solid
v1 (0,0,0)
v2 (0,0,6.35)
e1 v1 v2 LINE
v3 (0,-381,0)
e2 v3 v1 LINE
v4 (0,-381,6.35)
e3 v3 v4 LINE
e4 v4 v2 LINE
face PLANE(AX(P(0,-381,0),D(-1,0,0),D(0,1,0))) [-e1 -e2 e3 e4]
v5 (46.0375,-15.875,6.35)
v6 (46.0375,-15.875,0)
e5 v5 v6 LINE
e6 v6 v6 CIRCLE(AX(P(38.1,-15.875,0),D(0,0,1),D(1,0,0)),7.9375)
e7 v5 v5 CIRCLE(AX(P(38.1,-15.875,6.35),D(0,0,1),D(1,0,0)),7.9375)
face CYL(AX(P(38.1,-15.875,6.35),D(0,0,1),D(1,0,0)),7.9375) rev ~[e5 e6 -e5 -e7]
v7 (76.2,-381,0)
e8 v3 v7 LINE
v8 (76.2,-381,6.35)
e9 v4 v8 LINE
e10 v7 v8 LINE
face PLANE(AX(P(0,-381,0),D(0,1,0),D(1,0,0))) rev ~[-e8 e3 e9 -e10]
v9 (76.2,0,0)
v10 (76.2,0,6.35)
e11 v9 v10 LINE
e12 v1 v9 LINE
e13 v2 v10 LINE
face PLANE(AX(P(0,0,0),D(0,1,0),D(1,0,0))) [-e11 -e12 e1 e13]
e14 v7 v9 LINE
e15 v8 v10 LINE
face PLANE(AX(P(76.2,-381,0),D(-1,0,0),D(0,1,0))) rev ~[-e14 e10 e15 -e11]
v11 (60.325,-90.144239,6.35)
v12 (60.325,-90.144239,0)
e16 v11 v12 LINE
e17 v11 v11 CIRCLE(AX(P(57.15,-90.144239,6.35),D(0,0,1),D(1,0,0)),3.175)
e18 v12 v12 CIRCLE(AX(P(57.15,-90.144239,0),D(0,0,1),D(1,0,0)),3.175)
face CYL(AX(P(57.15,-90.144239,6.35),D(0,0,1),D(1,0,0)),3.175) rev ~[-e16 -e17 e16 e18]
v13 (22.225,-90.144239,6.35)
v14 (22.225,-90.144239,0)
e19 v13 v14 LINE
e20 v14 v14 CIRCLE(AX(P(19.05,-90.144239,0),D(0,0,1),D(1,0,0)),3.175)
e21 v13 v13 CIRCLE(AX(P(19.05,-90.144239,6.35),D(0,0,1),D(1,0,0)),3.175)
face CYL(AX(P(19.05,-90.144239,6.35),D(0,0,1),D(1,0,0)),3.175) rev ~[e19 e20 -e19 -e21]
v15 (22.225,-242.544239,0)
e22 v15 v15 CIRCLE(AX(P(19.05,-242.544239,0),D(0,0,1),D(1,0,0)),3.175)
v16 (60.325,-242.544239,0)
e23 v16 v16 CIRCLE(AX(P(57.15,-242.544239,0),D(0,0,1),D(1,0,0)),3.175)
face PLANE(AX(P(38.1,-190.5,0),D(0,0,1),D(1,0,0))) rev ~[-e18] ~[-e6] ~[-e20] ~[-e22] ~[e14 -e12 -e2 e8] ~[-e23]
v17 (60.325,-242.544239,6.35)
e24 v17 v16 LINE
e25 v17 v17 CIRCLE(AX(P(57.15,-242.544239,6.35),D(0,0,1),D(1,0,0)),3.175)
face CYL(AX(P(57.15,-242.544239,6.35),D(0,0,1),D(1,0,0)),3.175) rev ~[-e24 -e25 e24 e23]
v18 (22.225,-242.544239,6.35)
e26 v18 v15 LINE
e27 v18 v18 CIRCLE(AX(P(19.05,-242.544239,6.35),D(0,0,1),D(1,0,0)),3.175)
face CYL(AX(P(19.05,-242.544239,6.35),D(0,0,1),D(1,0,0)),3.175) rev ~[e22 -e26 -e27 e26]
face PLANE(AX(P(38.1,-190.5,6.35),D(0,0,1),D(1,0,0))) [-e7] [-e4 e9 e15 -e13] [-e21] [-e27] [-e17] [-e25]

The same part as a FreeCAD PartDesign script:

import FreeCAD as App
import Part
import Sketcher
from FreeCAD import Vector
Q = App.Units.Quantity


def add_polygon(sketch, points):
    """Adds a closed chain of lines whose ends are joined by coincident constraints."""
    first, n = sketch.GeometryCount, len(points)
    for a, b in zip(points, points[1:] + points[:1]):
        sketch.addGeometry(Part.LineSegment(App.Vector(*a, 0), App.Vector(*b, 0)), False)
    for i in range(n):
        sketch.addConstraint(Sketcher.Constraint("Coincident", first + i, 2, first + (i + 1) % n, 1))

doc = App.newDocument("Part")
body = doc.addObject("PartDesign::Body", "Body")

sketch1 = doc.addObject("Sketcher::SketchObject", "Sketch")
body.addObject(sketch1)
sketch1.AttachmentSupport = (doc.XY_Plane, [""])
sketch1.MapMode = "FlatFace"
add_polygon(sketch1, [(0, 0), (0, -381), (76, -381), (76, 0)])
sketch1.addConstraint([
    Sketcher.Constraint("Vertical", 0),
    Sketcher.Constraint("Horizontal", 1),
    Sketcher.Constraint("Vertical", 2),
    Sketcher.Constraint("Horizontal", 3),
    Sketcher.Constraint("Coincident", 3, 2, -1, 1),
    Sketcher.Constraint("DistanceX", 1, 1, 1, 2, Q("3 in")),
    Sketcher.Constraint("DistanceY", 0, 2, 0, 1, Q("15 in")),
])
pad1 = doc.addObject("PartDesign::Pad", "Pad")
body.addObject(pad1)
pad1.Profile = sketch1
pad1.Length = Q("0.25 in")

sketch2 = doc.addObject("Sketcher::SketchObject", "Sketch001")
body.addObject(sketch2)
sketch2.AttachmentSupport = (doc.XY_Plane, [""])
sketch2.MapMode = "FlatFace"
sketch2.AttachmentOffset = App.Placement(Vector(0, 0, 0.25 * 25.4), App.Rotation())
sketch2.addGeometry([
    Part.Circle(Vector(38.1, -15.9, 0), Vector(0, 0, 1), 7.9),
    Part.Circle(Vector(19.1, -90.1, 0), Vector(0, 0, 1), 3.2),
    Part.Circle(Vector(19.1, -242.5, 0), Vector(0, 0, 1), 3.2),
    Part.Circle(Vector(57.1, -90.1, 0), Vector(0, 0, 1), 3.2),
    Part.Circle(Vector(57.1, -242.5, 0), Vector(0, 0, 1), 3.2),
], False)
sketch2.addConstraint([
    Sketcher.Constraint("Equal", 1, 2),
    Sketcher.Constraint("Equal", 2, 3),
    Sketcher.Constraint("Equal", 3, 4),
    Sketcher.Constraint("Horizontal", 1, 3, 3, 3),
    Sketcher.Constraint("Horizontal", 2, 3, 4, 3),
    Sketcher.Constraint("Vertical", 1, 3, 2, 3),
    Sketcher.Constraint("Vertical", 3, 3, 4, 3),
    Sketcher.Constraint("Diameter", 1, Q("0.25 in")),
    Sketcher.Constraint("Diameter", 0, Q("0.625 in")),
    Sketcher.Constraint("DistanceY", 2, 3, 1, 3, Q("6 in")),
    Sketcher.Constraint("DistanceX", -1, 1, 0, 3, Q("1.5 in")),
    Sketcher.Constraint("DistanceX", 1, 3, 3, 3, Q("1.5 in")),
    Sketcher.Constraint("DistanceX", -1, 1, 1, 3, Q("0.75 in")),
    Sketcher.Constraint("DistanceY", 0, 3, -1, 1, Q("0.625 in")),
    Sketcher.Constraint("DistanceY", 1, 3, -1, 1, 90.144239),
])
pocket1 = doc.addObject("PartDesign::Pocket", "Pocket")
body.addObject(pocket1)
pocket1.Profile = sketch2
pocket1.Length = Q("1 in")

doc.recompute()
